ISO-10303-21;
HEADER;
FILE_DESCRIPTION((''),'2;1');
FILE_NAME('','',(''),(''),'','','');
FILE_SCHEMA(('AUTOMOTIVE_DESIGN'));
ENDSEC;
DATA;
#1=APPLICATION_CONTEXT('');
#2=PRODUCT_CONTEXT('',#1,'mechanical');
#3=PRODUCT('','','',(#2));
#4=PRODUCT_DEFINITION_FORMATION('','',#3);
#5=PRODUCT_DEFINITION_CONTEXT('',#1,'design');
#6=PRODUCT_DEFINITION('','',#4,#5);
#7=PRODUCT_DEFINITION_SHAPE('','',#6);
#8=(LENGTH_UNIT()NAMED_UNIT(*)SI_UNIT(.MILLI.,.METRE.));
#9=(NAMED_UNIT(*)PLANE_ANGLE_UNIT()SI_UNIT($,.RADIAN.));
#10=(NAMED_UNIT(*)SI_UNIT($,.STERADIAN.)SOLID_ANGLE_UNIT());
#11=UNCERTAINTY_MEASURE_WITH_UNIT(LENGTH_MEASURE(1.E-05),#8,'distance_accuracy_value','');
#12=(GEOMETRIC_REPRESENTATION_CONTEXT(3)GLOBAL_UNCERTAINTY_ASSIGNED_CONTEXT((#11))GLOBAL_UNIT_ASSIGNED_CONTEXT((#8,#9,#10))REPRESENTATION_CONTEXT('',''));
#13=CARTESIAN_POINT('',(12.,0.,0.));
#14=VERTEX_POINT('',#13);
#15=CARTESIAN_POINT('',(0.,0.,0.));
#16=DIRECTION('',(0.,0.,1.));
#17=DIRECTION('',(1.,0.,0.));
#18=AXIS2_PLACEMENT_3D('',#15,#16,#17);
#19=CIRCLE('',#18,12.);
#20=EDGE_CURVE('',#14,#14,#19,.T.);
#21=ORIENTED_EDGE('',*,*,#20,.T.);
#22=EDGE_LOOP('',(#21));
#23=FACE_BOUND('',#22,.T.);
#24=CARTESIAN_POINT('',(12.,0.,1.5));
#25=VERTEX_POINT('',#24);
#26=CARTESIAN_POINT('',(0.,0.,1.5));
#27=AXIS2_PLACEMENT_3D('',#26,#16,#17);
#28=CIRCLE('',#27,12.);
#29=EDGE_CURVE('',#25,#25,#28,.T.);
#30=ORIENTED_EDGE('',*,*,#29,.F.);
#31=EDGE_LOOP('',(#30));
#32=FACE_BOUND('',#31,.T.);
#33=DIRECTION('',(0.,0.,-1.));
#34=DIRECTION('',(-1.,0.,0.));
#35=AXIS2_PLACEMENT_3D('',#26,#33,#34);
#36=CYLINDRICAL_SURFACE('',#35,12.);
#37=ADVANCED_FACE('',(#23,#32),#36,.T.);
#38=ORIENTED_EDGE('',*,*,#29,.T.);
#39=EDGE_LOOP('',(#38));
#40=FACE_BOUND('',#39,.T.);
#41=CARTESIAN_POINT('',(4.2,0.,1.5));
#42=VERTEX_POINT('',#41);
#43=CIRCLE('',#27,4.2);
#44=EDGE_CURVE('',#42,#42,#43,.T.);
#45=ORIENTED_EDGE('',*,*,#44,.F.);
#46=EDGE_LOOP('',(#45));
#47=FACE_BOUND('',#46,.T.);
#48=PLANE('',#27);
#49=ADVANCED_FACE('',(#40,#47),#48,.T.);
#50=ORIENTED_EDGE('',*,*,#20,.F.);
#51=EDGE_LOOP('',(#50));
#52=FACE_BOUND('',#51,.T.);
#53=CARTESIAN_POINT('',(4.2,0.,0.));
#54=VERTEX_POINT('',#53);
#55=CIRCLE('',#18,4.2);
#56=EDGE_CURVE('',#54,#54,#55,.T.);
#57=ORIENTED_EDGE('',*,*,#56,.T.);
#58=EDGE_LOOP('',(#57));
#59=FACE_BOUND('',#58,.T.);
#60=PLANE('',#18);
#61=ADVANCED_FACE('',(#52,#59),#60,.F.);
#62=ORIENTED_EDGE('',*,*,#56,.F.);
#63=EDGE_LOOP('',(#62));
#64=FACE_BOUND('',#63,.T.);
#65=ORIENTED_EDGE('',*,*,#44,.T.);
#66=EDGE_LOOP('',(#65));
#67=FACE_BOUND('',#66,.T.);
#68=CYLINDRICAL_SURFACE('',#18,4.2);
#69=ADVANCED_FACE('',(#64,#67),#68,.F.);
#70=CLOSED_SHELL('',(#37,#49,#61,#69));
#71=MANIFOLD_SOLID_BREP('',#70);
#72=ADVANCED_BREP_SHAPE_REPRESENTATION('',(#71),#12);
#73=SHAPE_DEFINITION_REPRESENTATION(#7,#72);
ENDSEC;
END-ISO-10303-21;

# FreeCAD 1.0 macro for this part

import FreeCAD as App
import Part
import Sketcher

V = App.Vector

doc = App.newDocument("Part")
params = doc.addObject("Spreadsheet::Sheet", "Params")
for row, (alias, value) in enumerate([
    ("sketch1_diameter", "24 mm"),
    ("pad1_length", "1.5 mm"),
    ("sketch2_diameter", "8.4 mm"),
    ("pocket1_length", "1.5 mm"),
], start=1):
    params.set(f"A{row}", alias)
    params.set(f"B{row}", "=" + value)
    params.setAlias(f"B{row}", alias)

body = doc.addObject("PartDesign::Body", "Body")

# Sketch on XY plane
sketch1 = body.newObject("Sketcher::SketchObject", "Sketch")
sketch1.AttachmentSupport = (doc.getObject("XY_Plane"), [""])
sketch1.MapMode = "FlatFace"
sketch1.addGeometry(Part.Circle(V(0, 0, 0), V(0, 0, 1), 12), False)
sketch1.addConstraint(Sketcher.Constraint("Coincident", 0, 3, -1, 1))
sketch1.addConstraint(Sketcher.Constraint("Diameter", 0, 24.0))
sketch1.setExpression("Constraints[1]", "Params.sketch1_diameter")
pad1 = body.newObject("PartDesign::Pad", "Pad")
pad1.Profile = sketch1
pad1.setExpression("Length", "Params.pad1_length")

# Sketch on XY plane
sketch2 = body.newObject("Sketcher::SketchObject", "Sketch001")
sketch2.AttachmentSupport = (doc.getObject("XY_Plane"), [""])
sketch2.MapMode = "FlatFace"
sketch2.AttachmentOffset = App.Placement(V(0, 0, 1.5), App.Rotation())
sketch2.addGeometry(Part.Circle(V(0, 0, 0), V(0, 0, 1), 4.2), False)
sketch2.addConstraint(Sketcher.Constraint("Coincident", 0, 3, -1, 1))
sketch2.addConstraint(Sketcher.Constraint("Diameter", 0, 8.4))
sketch2.setExpression("Constraints[1]", "Params.sketch2_diameter")
pocket1 = body.newObject("PartDesign::Pocket", "Pocket")
pocket1.Profile = sketch2
pocket1.setExpression("Length", "Params.pocket1_length")

doc.recompute()
